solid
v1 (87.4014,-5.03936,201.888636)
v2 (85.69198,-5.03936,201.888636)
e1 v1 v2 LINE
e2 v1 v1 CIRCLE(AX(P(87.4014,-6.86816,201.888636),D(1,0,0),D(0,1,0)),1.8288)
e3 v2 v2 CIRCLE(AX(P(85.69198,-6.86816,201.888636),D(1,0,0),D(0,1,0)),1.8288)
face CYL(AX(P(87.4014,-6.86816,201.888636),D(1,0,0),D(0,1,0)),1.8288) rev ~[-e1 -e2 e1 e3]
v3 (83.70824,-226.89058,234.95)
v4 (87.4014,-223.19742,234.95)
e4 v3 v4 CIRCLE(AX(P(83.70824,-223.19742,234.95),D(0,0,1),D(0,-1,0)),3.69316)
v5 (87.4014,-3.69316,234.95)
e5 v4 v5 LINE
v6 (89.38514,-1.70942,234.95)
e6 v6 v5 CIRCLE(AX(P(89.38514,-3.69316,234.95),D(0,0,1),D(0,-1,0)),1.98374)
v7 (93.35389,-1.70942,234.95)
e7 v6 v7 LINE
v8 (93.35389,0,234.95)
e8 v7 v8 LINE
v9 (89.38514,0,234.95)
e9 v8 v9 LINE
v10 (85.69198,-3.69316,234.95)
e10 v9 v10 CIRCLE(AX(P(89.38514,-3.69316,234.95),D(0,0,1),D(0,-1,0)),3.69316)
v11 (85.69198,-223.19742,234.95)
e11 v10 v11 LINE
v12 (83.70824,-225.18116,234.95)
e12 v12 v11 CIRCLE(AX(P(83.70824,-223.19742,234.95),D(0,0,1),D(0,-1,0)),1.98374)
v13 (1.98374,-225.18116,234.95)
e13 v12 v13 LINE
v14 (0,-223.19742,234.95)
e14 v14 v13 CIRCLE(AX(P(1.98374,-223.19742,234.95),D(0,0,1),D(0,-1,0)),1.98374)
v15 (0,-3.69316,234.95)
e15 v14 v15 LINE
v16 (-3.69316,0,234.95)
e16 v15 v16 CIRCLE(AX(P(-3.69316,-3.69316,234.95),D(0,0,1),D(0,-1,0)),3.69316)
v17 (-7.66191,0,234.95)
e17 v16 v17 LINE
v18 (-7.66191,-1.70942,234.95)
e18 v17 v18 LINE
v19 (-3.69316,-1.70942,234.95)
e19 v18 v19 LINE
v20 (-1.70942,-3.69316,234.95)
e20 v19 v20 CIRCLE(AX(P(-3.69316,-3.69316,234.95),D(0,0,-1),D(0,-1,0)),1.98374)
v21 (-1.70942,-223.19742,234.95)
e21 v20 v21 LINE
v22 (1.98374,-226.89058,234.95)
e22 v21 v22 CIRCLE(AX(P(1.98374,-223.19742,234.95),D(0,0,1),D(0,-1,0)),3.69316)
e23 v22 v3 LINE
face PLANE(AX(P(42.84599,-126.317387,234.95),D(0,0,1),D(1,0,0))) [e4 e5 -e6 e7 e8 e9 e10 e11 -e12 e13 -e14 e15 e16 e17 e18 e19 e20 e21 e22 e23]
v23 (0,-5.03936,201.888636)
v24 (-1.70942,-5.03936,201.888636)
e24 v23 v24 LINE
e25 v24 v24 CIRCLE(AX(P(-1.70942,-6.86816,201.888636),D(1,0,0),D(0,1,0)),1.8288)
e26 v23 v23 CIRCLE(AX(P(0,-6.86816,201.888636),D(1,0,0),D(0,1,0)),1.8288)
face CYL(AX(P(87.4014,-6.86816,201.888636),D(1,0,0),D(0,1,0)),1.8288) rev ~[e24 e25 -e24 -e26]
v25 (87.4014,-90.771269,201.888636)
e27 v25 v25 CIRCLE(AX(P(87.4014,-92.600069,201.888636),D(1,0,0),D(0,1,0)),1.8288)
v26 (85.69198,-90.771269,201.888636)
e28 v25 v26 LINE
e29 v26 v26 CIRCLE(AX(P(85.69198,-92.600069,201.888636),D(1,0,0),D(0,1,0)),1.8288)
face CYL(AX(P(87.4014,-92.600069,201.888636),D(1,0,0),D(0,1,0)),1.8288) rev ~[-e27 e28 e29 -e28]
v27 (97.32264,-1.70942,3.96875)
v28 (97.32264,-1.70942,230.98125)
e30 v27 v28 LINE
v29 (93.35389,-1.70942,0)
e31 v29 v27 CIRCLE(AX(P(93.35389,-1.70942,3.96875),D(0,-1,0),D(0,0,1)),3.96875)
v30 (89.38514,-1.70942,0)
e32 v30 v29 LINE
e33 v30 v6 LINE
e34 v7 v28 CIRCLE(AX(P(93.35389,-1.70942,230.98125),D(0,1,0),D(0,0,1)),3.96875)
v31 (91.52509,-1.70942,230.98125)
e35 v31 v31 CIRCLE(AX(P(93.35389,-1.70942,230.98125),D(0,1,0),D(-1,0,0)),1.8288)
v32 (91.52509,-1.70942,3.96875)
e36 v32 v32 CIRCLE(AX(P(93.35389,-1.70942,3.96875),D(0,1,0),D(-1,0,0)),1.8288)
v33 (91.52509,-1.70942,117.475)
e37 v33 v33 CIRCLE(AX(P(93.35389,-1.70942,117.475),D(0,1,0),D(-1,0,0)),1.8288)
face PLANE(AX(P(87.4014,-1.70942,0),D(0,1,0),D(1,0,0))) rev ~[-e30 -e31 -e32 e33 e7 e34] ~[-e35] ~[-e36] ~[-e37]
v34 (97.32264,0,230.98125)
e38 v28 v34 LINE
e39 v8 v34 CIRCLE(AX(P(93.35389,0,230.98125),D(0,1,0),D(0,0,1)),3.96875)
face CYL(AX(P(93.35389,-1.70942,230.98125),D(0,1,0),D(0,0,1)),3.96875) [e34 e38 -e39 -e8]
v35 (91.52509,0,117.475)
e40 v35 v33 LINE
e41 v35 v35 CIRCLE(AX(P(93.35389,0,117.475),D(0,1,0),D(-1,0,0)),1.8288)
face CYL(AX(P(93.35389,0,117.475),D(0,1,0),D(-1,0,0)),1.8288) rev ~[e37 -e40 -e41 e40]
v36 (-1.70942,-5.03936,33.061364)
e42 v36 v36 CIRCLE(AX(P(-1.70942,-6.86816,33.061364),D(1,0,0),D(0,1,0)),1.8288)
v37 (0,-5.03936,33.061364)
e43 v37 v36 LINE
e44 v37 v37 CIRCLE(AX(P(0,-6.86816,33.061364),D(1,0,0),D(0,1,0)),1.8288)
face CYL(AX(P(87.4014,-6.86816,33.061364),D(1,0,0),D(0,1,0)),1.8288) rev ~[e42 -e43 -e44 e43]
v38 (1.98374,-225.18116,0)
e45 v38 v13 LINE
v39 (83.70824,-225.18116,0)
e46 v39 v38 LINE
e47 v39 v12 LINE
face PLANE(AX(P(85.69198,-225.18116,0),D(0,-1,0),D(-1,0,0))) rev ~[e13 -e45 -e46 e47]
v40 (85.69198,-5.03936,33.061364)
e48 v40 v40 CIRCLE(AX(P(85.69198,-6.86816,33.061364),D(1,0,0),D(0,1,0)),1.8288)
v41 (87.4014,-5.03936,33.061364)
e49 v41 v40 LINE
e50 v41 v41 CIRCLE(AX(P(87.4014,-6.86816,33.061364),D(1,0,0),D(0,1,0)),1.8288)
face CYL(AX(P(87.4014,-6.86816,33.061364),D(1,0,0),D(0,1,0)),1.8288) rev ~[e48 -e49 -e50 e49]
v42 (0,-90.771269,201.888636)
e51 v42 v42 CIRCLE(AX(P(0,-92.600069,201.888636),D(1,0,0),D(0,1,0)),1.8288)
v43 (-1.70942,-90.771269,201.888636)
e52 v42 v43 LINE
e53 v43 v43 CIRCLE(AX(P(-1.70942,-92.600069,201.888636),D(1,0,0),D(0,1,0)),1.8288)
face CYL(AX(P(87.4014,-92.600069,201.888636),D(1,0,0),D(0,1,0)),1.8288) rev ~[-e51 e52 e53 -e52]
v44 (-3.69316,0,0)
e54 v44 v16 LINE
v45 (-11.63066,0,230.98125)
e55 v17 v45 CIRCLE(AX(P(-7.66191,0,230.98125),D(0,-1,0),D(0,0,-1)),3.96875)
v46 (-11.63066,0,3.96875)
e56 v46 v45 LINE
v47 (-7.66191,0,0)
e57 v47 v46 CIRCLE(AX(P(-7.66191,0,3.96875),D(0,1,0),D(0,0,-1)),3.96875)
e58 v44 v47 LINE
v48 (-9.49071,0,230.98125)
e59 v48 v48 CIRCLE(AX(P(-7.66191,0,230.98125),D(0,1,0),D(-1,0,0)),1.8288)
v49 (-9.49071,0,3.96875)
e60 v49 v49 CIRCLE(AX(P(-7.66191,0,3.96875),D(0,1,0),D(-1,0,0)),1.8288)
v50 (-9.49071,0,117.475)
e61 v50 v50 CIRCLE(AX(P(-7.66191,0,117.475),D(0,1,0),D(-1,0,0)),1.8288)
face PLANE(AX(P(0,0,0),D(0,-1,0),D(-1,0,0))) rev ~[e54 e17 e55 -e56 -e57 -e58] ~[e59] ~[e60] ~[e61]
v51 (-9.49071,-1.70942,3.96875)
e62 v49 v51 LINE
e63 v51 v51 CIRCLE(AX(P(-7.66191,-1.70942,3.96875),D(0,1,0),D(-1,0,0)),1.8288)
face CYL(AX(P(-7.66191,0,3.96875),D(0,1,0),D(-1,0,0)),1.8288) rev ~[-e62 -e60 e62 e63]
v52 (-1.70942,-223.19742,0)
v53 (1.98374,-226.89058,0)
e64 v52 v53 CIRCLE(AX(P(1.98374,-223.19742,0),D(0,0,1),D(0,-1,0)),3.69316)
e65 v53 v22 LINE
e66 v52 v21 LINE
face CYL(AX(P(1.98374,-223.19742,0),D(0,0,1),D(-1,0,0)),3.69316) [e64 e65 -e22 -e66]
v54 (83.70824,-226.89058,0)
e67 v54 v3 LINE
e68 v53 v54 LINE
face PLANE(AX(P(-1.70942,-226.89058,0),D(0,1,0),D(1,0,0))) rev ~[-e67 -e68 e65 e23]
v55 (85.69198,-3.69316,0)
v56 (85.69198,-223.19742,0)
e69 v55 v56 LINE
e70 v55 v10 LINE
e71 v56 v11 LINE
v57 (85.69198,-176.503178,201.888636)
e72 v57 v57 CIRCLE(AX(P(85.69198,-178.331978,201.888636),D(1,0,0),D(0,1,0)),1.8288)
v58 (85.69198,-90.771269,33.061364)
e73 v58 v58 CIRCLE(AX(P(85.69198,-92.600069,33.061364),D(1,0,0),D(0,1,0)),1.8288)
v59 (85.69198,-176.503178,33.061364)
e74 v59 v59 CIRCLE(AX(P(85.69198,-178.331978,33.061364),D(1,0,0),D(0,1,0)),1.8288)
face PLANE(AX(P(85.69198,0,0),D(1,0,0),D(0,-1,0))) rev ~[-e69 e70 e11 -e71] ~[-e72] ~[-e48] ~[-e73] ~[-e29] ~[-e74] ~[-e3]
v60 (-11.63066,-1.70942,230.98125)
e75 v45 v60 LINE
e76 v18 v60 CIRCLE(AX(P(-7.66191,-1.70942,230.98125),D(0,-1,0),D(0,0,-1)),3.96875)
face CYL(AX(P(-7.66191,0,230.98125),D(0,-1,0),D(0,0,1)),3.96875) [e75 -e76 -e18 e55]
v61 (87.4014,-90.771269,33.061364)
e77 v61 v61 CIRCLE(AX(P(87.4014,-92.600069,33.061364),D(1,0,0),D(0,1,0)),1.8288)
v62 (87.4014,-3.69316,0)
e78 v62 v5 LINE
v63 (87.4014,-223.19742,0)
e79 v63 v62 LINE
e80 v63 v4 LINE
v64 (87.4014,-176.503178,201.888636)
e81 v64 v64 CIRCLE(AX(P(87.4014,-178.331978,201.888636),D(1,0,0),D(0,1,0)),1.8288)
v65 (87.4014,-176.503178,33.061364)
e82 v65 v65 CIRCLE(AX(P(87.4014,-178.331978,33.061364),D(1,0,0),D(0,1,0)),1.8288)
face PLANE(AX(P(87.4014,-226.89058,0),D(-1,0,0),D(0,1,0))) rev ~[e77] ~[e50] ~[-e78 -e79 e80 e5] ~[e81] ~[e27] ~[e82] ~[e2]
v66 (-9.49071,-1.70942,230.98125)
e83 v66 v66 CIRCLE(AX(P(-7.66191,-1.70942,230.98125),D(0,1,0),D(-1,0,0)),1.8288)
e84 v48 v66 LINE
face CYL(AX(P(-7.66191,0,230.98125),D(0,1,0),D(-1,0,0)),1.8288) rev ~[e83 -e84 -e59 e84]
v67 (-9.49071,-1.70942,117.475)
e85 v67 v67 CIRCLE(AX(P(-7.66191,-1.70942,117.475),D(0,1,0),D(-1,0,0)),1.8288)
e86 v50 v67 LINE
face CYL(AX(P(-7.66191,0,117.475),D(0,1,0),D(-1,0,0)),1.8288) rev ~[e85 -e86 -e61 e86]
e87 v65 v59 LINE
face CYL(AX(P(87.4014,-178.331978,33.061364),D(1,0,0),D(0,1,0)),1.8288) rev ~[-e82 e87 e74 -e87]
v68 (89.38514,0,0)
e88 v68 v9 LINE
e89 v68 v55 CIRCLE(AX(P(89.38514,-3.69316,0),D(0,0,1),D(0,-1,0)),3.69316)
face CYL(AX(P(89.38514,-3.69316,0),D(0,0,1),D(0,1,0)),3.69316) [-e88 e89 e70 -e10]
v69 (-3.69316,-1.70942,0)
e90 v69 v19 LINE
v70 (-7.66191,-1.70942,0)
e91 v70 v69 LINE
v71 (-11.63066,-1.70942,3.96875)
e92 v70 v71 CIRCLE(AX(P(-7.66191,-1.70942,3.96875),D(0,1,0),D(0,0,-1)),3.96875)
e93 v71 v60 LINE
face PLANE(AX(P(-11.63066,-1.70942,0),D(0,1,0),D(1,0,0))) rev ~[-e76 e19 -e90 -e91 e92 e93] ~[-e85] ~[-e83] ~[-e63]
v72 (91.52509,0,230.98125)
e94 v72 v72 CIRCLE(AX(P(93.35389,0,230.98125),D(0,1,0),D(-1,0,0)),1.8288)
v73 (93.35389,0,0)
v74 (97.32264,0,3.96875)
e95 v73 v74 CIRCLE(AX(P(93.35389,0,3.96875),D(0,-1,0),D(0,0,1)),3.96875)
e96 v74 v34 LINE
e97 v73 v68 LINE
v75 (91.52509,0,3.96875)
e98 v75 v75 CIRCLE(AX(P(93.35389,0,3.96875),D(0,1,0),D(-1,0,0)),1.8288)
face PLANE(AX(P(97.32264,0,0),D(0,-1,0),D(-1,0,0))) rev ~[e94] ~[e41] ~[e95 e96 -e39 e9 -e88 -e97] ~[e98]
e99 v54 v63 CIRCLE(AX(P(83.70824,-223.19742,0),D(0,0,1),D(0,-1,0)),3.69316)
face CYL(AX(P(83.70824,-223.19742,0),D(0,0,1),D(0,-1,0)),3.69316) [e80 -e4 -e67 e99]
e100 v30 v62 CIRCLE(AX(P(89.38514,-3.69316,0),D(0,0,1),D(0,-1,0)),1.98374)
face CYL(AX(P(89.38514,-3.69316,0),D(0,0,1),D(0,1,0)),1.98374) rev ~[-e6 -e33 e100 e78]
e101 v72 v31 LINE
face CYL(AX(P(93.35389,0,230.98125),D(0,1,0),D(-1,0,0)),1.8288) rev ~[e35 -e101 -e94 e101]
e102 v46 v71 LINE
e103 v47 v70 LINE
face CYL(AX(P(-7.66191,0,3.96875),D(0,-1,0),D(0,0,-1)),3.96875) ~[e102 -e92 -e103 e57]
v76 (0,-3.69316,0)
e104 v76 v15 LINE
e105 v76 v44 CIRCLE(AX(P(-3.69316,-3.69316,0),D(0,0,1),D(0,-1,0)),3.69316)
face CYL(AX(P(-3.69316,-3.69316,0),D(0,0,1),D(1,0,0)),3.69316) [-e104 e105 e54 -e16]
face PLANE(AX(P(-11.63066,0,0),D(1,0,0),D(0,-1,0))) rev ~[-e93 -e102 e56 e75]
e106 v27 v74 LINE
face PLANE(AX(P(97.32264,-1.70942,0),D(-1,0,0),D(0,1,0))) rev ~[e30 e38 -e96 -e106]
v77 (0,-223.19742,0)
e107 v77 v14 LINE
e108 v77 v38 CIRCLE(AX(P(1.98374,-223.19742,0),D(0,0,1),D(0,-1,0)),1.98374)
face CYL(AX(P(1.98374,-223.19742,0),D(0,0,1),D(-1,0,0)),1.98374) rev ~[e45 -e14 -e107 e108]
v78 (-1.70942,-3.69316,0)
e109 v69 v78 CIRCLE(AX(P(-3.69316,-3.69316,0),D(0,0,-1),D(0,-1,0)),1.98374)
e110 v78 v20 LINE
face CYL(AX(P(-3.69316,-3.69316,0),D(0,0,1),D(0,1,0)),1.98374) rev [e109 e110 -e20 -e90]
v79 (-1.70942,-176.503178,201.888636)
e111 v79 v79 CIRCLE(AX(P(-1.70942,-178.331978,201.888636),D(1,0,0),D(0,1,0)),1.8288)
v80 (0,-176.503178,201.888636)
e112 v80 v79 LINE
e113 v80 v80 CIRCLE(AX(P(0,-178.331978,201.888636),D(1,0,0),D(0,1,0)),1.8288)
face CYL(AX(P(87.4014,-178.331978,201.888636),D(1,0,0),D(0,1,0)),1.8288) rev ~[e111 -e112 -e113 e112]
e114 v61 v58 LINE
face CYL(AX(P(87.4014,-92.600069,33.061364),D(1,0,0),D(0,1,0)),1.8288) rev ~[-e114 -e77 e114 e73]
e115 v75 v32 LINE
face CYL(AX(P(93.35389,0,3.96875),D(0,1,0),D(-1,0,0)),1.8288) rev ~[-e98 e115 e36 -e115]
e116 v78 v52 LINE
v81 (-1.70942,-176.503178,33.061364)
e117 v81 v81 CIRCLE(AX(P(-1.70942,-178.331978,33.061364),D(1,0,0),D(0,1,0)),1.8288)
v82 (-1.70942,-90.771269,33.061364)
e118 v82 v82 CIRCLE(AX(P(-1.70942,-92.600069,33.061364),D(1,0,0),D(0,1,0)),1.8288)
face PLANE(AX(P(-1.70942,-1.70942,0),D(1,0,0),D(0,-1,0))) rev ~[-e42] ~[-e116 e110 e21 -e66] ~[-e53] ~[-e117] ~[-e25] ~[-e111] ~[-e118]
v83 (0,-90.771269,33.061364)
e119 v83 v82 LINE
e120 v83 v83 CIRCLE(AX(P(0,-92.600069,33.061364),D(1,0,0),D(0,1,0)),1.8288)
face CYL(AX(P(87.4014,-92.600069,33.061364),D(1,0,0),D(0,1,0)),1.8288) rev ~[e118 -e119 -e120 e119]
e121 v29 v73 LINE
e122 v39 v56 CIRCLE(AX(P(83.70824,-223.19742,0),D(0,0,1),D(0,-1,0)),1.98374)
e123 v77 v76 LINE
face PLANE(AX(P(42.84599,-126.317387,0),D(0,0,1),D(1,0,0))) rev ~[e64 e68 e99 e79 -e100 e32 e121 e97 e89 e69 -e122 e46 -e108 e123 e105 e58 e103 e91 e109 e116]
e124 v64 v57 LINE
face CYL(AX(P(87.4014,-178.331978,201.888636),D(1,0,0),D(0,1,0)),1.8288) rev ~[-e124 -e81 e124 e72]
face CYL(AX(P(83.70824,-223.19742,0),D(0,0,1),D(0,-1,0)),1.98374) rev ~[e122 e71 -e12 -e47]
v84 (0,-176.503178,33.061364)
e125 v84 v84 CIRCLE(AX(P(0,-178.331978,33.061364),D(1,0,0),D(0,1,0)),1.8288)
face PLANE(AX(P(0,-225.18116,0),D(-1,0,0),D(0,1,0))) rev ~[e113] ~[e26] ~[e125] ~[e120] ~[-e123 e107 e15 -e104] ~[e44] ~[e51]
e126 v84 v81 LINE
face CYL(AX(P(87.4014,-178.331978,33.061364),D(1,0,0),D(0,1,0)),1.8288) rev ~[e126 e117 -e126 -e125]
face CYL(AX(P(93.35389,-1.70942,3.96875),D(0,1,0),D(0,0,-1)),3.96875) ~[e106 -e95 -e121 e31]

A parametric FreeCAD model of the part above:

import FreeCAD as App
import Part
import Sketcher
from FreeCAD import Vector
Q = App.Units.Quantity


def edges_at(feature, points):
    """Names of the edges that pass closest to the given points."""
    edges = feature.Shape.Edges
    near = lambda p: min(range(len(edges)), key=lambda i: edges[i].distToShape(Part.Vertex(*p))[0])
    return sorted({f"Edge{near(p) + 1}" for p in points})

doc = App.newDocument("Part")
body = doc.addObject("PartDesign::Body", "Body")

sketch1 = body.newObject("Sketcher::SketchObject", "Sketch")
sketch1.AttachmentSupport = (doc.getObject("XY_Plane"), [""])
sketch1.MapMode = "FlatFace"
sketch1.addGeometry(Part.LineSegment(Vector(0, -225.18116, 0), Vector(0, 0, 0)), False)
sketch1.addGeometry(Part.LineSegment(Vector(0, 0, 0), Vector(-11.63066, 0, 0)), False)
sketch1.addGeometry(Part.LineSegment(Vector(-11.63066, 0, 0), Vector(-11.63066, -1.70942, 0)), False)
sketch1.addGeometry(Part.LineSegment(Vector(-11.63066, -1.70942, 0), Vector(-1.70942, -1.70942, 0)), False)
sketch1.addGeometry(Part.LineSegment(Vector(-1.70942, -1.70942, 0), Vector(-1.70942, -226.89058, 0)), False)
sketch1.addGeometry(Part.LineSegment(Vector(-1.70942, -226.89058, 0), Vector(87.4014, -226.89058, 0)), False)
sketch1.addGeometry(Part.LineSegment(Vector(87.4014, -226.89058, 0), Vector(87.4014, -1.70942, 0)), False)
sketch1.addGeometry(Part.LineSegment(Vector(87.4014, -1.70942, 0), Vector(97.32264, -1.70942, 0)), False)
sketch1.addGeometry(Part.LineSegment(Vector(97.32264, -1.70942, 0), Vector(97.32264, 0, 0)), False)
sketch1.addGeometry(Part.LineSegment(Vector(97.32264, 0, 0), Vector(85.69198, 0, 0)), False)
sketch1.addGeometry(Part.LineSegment(Vector(85.69198, 0, 0), Vector(85.69198, -225.18116, 0)), False)
sketch1.addGeometry(Part.LineSegment(Vector(85.69198, -225.18116, 0), Vector(0, -225.18116, 0)), False)
sketch1.addConstraint(Sketcher.Constraint("Coincident", 0, 2, 1, 1))
sketch1.addConstraint(Sketcher.Constraint("Coincident", 1, 2, 2, 1))
sketch1.addConstraint(Sketcher.Constraint("Coincident", 2, 2, 3, 1))
sketch1.addConstraint(Sketcher.Constraint("Coincident", 3, 2, 4, 1))
sketch1.addConstraint(Sketcher.Constraint("Coincident", 4, 2, 5, 1))
sketch1.addConstraint(Sketcher.Constraint("Coincident", 5, 2, 6, 1))
sketch1.addConstraint(Sketcher.Constraint("Coincident", 6, 2, 7, 1))
sketch1.addConstraint(Sketcher.Constraint("Coincident", 7, 2, 8, 1))
sketch1.addConstraint(Sketcher.Constraint("Coincident", 8, 2, 9, 1))
sketch1.addConstraint(Sketcher.Constraint("Coincident", 9, 2, 10, 1))
sketch1.addConstraint(Sketcher.Constraint("Coincident", 10, 2, 11, 1))
sketch1.addConstraint(Sketcher.Constraint("Coincident", 11, 2, 0, 1))
sketch1.addConstraint(Sketcher.Constraint("Vertical", 0))
sketch1.addConstraint(Sketcher.Constraint("Horizontal", 1))
sketch1.addConstraint(Sketcher.Constraint("Vertical", 2))
sketch1.addConstraint(Sketcher.Constraint("Horizontal", 3))
sketch1.addConstraint(Sketcher.Constraint("Vertical", 4))
sketch1.addConstraint(Sketcher.Constraint("Horizontal", 5))
sketch1.addConstraint(Sketcher.Constraint("Vertical", 6))
sketch1.addConstraint(Sketcher.Constraint("Horizontal", 7))
sketch1.addConstraint(Sketcher.Constraint("Vertical", 8))
sketch1.addConstraint(Sketcher.Constraint("Horizontal", 9))
sketch1.addConstraint(Sketcher.Constraint("Vertical", 10))
sketch1.addConstraint(Sketcher.Constraint("Horizontal", 11))
sketch1.addConstraint(Sketcher.Constraint("Coincident", 0, 2, -1, 1))
sketch1.addConstraint(Sketcher.Constraint("PointOnObject", 8, 2, -1))
sketch1.addConstraint(Sketcher.Constraint("Horizontal", 3, 2, 6, 2))
sketch1.addConstraint(Sketcher.Constraint("Equal", 3, 7))
sketch1.addConstraint(Sketcher.Constraint("Equal", 1, 9))
sketch1.addConstraint(Sketcher.Constraint("Equal", 0, 4))
sketch1.addConstraint(Sketcher.Constraint("DistanceX", 1, 2, 1, 1, Q("0.4579 in")))
sketch1.addConstraint(Sketcher.Constraint("DistanceX", 3, 1, 3, 2, Q("0.3906 in")))
sketch1.addConstraint(Sketcher.Constraint("DistanceX", 5, 1, 5, 2, Q("3.5083 in")))
sketch1.addConstraint(Sketcher.Constraint("DistanceY", 0, 1, 0, 2, Q("8.8654 in")))
sketch1.addConstraint(Sketcher.Constraint("DistanceY", 2, 2, 2, 1, Q("0.0673 in")))
pad1 = body.newObject("PartDesign::Pad", "Pad")
pad1.Profile = sketch1
pad1.Length = Q("9.25 in")
doc.recompute()

fillet = body.newObject("PartDesign::Fillet", "Fillet")
fillet.Base = (pad1, edges_at(pad1, [
    (-1.709, -226.891, 117.475),
    (87.401, -226.891, 117.475),
    (85.692, 0, 117.475),
    (0, 0, 117.475),
]))
fillet.Radius = Q("0.1454 in")
doc.recompute()

fillet2 = body.newObject("PartDesign::Fillet", "Fillet001")
fillet2.Base = (fillet, edges_at(fillet, [
    (0, -225.181, 117.475),
    (85.692, -225.181, 117.475),
    (-1.709, -1.709, 117.475),
    (87.401, -1.709, 117.475),
]))
fillet2.Radius = Q("0.0781 in")
doc.recompute()

fillet3 = body.newObject("PartDesign::Fillet", "Fillet002")
fillet3.Base = (fillet2, edges_at(fillet2, [
    (-11.631, -0.855, 0),
    (-11.631, -0.855, 234.95),
    (97.323, -0.855, 234.95),
    (97.323, -0.855, 0),
]))
fillet3.Radius = Q("0.15625 in")

sketch2 = body.newObject("Sketcher::SketchObject", "Sketch001")
sketch2.AttachmentSupport = (doc.getObject("YZ_Plane"), [""])
sketch2.MapMode = "FlatFace"
sketch2.AttachmentOffset = App.Placement(Vector(0, 0, 3.441 * 25.4), App.Rotation())
sketch2.addGeometry(Part.Circle(Vector(-6.86816, 33.061364, 0), Vector(0, 0, 1), 1.8288), False)
sketch2.addGeometry(Part.Circle(Vector(-92.600069, 33.061364, 0), Vector(0, 0, 1), 1.8288), False)
sketch2.addGeometry(Part.Circle(Vector(-178.331978, 33.061364, 0), Vector(0, 0, 1), 1.8288), False)
sketch2.addGeometry(Part.Circle(Vector(-178.331978, 201.888636, 0), Vector(0, 0, 1), 1.8288), False)
sketch2.addGeometry(Part.Circle(Vector(-92.600069, 201.888636, 0), Vector(0, 0, 1), 1.8288), False)
sketch2.addGeometry(Part.Circle(Vector(-6.86816, 201.888636, 0), Vector(0, 0, 1), 1.8288), False)
sketch2.addConstraint(Sketcher.Constraint("Equal", 0, 1))
sketch2.addConstraint(Sketcher.Constraint("Equal", 1, 2))
sketch2.addConstraint(Sketcher.Constraint("Equal", 2, 3))
sketch2.addConstraint(Sketcher.Constraint("Equal", 3, 4))
sketch2.addConstraint(Sketcher.Constraint("Equal", 4, 5))
sketch2.addConstraint(Sketcher.Constraint("Horizontal", 0, 3, 1, 3))
sketch2.addConstraint(Sketcher.Constraint("Horizontal", 1, 3, 2, 3))
sketch2.addConstraint(Sketcher.Constraint("Horizontal", 3, 3, 4, 3))
sketch2.addConstraint(Sketcher.Constraint("Horizontal", 4, 3, 5, 3))
sketch2.addConstraint(Sketcher.Constraint("Vertical", 2, 3, 3, 3))
sketch2.addConstraint(Sketcher.Constraint("Vertical", 1, 3, 4, 3))
sketch2.addConstraint(Sketcher.Constraint("Vertical", 0, 3, 5, 3))
sketch2.addConstraint(Sketcher.Constraint("Diameter", 0, Q("0.144 in")))
sketch2.addConstraint(Sketcher.Constraint("DistanceX", 0, 3, -1, 1, Q("0.2704 in")))
sketch2.addConstraint(Sketcher.Constraint("DistanceX", 1, 3, -1, 1, Q("92.600069 mm")))
sketch2.addConstraint(Sketcher.Constraint("DistanceX", 2, 3, -1, 1, Q("178.331978 mm")))
sketch2.addConstraint(Sketcher.Constraint("DistanceY", 2, 3, 3, 3, Q("168.827272 mm")))
sketch2.addConstraint(Sketcher.Constraint("DistanceY", -1, 1, 0, 3, Q("33.061364 mm")))
pocket1 = body.newObject("PartDesign::Pocket", "Pocket")
pocket1.Profile = sketch2
pocket1.Type = "ThroughAll"

sketch3 = body.newObject("Sketcher::SketchObject", "Sketch002")
sketch3.AttachmentSupport = (doc.getObject("XZ_Plane"), [""])
sketch3.MapMode = "FlatFace"
sketch3.addGeometry(Part.Circle(Vector(93.35389, 3.96875, 0), Vector(0, 0, 1), 1.8288), False)
sketch3.addGeometry(Part.Circle(Vector(93.35389, 117.475, 0), Vector(0, 0, 1), 1.8288), False)
sketch3.addGeometry(Part.Circle(Vector(93.35389, 230.98125, 0), Vector(0, 0, 1), 1.8288), False)
sketch3.addGeometry(Part.Circle(Vector(-7.66191, 230.98125, 0), Vector(0, 0, 1), 1.8288), False)
sketch3.addGeometry(Part.Circle(Vector(-7.66191, 117.475, 0), Vector(0, 0, 1), 1.8288), False)
sketch3.addGeometry(Part.Circle(Vector(-7.66191, 3.96875, 0), Vector(0, 0, 1), 1.8288), False)
sketch3.addConstraint(Sketcher.Constraint("Equal", 0, 1))
sketch3.addConstraint(Sketcher.Constraint("Equal", 1, 2))
sketch3.addConstraint(Sketcher.Constraint("Equal", 2, 3))
sketch3.addConstraint(Sketcher.Constraint("Equal", 3, 4))
sketch3.addConstraint(Sketcher.Constraint("Equal", 4, 5))
sketch3.addConstraint(Sketcher.Constraint("Horizontal", 2, 3, 3, 3))
sketch3.addConstraint(Sketcher.Constraint("Horizontal", 1, 3, 4, 3))
sketch3.addConstraint(Sketcher.Constraint("Horizontal", 0, 3, 5, 3))
sketch3.addConstraint(Sketcher.Constraint("Vertical", 0, 3, 1, 3))
sketch3.addConstraint(Sketcher.Constraint("Vertical", 1, 3, 2, 3))
sketch3.addConstraint(Sketcher.Constraint("Vertical", 3, 3, 4, 3))
sketch3.addConstraint(Sketcher.Constraint("Vertical", 4, 3, 5, 3))
sketch3.addConstraint(Sketcher.Constraint("Diameter", 0, Q("0.144 in")))
sketch3.addConstraint(Sketcher.Constraint("DistanceY", -1, 1, 0, 3, Q("0.15625 in")))
sketch3.addConstraint(Sketcher.Constraint("DistanceY", -1, 1, 1, 3, Q("4.625 in")))
sketch3.addConstraint(Sketcher.Constraint("DistanceY", -1, 1, 2, 3, Q("9.09375 in")))
sketch3.addConstraint(Sketcher.Constraint("DistanceX", 3, 3, 2, 3, Q("3.977 in")))
sketch3.addConstraint(Sketcher.Constraint("DistanceX", -1, 1, 0, 3, Q("93.35389 mm")))
pocket2 = body.newObject("PartDesign::Pocket", "Pocket001")
pocket2.Profile = sketch3
pocket2.Type = "ThroughAll"
pocket2.Reversed = True

doc.recompute()
